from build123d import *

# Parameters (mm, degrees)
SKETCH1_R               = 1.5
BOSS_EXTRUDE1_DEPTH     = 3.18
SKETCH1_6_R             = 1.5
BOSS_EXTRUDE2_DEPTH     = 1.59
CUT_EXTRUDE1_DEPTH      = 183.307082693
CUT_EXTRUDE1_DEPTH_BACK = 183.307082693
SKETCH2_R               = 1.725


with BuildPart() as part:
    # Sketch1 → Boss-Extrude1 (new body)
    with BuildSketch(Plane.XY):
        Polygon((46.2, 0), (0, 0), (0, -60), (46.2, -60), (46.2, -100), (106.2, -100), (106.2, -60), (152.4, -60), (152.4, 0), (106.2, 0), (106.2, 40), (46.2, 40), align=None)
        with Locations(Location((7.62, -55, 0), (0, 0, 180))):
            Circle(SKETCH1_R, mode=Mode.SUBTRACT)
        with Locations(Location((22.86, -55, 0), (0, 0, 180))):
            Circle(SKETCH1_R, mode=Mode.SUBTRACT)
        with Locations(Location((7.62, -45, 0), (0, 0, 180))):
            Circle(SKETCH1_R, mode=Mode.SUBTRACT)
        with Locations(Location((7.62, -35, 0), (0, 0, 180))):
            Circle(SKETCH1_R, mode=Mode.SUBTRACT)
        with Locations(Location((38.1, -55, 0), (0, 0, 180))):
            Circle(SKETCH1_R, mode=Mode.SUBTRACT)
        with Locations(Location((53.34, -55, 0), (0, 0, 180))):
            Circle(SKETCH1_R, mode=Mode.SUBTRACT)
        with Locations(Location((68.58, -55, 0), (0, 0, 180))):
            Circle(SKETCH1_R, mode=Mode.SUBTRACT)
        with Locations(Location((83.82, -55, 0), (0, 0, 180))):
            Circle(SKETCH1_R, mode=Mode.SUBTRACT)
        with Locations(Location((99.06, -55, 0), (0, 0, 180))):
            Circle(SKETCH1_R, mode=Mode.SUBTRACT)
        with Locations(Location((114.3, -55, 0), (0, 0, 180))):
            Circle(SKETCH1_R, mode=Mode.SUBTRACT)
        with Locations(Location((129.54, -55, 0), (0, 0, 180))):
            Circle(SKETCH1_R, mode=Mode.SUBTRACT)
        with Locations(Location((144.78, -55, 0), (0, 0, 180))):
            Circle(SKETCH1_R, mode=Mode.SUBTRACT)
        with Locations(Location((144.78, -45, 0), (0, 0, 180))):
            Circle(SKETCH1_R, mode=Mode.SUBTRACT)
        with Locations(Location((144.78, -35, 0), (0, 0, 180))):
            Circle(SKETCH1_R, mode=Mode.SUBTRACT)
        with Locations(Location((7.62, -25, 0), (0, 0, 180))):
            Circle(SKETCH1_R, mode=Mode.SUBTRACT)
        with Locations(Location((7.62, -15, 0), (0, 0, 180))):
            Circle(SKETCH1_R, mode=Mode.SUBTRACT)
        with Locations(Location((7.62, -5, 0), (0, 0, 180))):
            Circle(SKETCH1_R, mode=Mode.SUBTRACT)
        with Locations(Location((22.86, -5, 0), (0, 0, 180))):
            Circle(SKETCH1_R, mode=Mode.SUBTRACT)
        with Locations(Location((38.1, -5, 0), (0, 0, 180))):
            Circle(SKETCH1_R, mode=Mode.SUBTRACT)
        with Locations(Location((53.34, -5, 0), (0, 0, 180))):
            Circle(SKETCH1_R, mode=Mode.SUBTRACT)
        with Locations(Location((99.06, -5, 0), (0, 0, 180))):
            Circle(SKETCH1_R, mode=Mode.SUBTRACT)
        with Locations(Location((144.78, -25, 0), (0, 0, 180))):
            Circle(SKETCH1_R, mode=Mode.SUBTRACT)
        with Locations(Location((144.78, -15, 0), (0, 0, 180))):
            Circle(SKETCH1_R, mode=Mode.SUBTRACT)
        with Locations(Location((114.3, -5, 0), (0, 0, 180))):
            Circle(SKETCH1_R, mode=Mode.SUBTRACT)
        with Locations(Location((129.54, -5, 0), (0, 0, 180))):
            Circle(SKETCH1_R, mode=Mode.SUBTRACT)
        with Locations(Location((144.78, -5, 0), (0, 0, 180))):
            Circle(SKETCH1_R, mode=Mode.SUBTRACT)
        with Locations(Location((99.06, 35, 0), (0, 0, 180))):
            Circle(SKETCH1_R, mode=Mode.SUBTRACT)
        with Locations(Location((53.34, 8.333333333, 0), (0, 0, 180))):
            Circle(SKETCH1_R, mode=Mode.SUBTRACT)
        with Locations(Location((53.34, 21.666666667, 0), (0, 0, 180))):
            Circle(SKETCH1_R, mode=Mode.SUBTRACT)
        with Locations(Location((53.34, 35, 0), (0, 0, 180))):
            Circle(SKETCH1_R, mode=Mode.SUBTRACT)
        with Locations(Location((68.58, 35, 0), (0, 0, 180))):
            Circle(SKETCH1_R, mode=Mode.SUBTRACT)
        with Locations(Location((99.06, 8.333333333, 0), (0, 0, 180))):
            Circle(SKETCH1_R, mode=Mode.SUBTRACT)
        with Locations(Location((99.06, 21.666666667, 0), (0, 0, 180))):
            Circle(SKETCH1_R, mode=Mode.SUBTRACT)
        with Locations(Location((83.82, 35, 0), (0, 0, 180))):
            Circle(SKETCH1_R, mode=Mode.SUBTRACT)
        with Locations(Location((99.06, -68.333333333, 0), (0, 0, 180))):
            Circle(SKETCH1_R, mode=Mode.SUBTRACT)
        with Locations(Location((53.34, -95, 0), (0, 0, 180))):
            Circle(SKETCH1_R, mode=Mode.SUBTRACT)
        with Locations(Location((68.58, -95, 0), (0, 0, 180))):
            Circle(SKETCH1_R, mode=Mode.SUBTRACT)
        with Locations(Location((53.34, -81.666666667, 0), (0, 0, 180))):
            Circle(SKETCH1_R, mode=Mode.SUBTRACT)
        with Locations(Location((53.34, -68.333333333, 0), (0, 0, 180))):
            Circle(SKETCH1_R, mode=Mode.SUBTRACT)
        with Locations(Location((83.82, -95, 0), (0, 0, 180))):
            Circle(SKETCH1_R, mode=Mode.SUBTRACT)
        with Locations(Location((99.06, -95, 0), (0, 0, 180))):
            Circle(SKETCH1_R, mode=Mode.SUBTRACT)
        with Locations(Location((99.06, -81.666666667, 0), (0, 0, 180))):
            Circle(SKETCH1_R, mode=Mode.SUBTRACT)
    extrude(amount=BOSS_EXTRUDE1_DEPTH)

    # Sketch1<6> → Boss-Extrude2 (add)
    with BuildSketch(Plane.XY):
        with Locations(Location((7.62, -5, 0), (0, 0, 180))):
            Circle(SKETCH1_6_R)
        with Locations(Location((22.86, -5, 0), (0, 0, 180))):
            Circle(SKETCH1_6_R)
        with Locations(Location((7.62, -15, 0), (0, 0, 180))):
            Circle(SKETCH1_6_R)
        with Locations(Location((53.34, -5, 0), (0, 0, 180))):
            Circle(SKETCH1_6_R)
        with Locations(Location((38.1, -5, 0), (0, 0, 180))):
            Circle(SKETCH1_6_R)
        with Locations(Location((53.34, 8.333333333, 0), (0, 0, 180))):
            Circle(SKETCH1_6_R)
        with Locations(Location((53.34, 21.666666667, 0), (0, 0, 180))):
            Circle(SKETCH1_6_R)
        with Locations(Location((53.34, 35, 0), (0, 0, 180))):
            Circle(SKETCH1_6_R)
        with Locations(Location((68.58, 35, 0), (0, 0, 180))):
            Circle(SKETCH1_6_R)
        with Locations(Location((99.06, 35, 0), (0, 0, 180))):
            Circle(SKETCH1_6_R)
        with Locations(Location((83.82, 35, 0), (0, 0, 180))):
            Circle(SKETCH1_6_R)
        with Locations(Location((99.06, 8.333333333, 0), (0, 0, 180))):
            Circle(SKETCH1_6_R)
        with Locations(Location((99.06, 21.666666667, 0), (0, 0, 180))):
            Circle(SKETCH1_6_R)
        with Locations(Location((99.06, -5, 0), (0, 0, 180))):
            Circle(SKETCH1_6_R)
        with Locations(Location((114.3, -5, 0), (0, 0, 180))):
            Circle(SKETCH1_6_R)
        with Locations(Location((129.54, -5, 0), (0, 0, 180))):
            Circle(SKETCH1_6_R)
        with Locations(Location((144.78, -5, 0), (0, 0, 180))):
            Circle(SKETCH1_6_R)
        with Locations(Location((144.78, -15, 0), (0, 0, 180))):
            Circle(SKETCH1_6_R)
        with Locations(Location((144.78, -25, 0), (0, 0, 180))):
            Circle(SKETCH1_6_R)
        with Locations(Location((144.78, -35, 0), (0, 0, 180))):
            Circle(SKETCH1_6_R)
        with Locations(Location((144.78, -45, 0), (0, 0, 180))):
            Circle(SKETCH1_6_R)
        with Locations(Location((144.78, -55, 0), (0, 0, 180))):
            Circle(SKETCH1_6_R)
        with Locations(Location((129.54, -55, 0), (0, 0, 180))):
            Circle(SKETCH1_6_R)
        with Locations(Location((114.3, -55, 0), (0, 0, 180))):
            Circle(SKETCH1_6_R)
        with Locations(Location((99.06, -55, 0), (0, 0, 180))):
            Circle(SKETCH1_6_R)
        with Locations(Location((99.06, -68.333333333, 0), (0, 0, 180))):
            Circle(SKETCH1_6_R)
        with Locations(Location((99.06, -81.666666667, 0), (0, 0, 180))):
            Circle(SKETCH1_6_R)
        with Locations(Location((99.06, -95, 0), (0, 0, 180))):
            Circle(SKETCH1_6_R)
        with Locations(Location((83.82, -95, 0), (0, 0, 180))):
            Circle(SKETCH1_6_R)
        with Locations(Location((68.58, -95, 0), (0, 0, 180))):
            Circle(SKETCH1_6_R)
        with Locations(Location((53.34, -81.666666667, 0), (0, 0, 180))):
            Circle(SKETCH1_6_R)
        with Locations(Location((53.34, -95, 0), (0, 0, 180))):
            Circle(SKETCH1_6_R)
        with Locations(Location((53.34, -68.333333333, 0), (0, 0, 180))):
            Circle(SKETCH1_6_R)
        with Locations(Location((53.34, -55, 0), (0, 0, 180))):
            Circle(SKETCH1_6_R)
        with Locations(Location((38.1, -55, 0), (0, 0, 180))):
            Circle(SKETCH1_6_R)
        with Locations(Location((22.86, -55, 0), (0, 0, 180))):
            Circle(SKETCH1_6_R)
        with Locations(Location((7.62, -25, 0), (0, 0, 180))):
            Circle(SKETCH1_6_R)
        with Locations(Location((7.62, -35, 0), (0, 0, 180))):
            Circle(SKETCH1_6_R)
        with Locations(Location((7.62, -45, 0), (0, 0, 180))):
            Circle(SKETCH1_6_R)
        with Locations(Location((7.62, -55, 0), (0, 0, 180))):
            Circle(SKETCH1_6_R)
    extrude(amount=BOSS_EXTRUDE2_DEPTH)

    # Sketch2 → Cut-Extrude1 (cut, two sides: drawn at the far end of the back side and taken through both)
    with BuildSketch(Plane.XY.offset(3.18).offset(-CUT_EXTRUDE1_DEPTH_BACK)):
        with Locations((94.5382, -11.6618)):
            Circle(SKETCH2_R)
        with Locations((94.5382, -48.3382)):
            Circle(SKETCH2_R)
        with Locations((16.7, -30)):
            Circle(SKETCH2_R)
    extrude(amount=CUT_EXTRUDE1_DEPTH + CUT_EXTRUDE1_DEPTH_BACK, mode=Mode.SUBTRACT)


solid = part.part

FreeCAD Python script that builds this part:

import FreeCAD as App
import Part
import Sketcher
from FreeCAD import Vector

doc = App.newDocument("Part")
body = doc.addObject("PartDesign::Body", "Body")

# Sketch on XY plane
sketch1 = body.newObject("Sketcher::SketchObject", "Sketch")
sketch1.AttachmentSupport = (doc.getObject("XY_Plane"), [""])
sketch1.MapMode = "FlatFace"
sketch1.addGeometry(Part.LineSegment(Vector(46.2, 0, 0), Vector(0, 0, 0)), False)
sketch1.addGeometry(Part.LineSegment(Vector(0, 0, 0), Vector(0, -60, 0)), False)
sketch1.addGeometry(Part.LineSegment(Vector(0, -60, 0), Vector(46.2, -60, 0)), False)
sketch1.addGeometry(Part.LineSegment(Vector(46.2, -60, 0), Vector(46.2, -100, 0)), False)
sketch1.addGeometry(Part.LineSegment(Vector(46.2, -100, 0), Vector(106.2, -100, 0)), False)
sketch1.addGeometry(Part.LineSegment(Vector(106.2, -100, 0), Vector(106.2, -60, 0)), False)
sketch1.addGeometry(Part.LineSegment(Vector(106.2, -60, 0), Vector(152.4, -60, 0)), False)
sketch1.addGeometry(Part.LineSegment(Vector(152.4, -60, 0), Vector(152.4, 0, 0)), False)
sketch1.addGeometry(Part.LineSegment(Vector(152.4, 0, 0), Vector(106.2, 0, 0)), False)
sketch1.addGeometry(Part.LineSegment(Vector(106.2, 0, 0), Vector(106.2, 40, 0)), False)
sketch1.addGeometry(Part.LineSegment(Vector(106.2, 40, 0), Vector(46.2, 40, 0)), False)
sketch1.addGeometry(Part.LineSegment(Vector(46.2, 40, 0), Vector(46.2, 0, 0)), False)
sketch1.addGeometry(Part.Circle(Vector(53.3, -95, 0), Vector(0, 0, 1), 1.5), False)
sketch1.addGeometry(Part.Circle(Vector(53.3, -81.7, 0), Vector(0, 0, 1), 1.5), False)
sketch1.addGeometry(Part.Circle(Vector(68.6, -95, 0), Vector(0, 0, 1), 1.5), False)
sketch1.addGeometry(Part.Circle(Vector(53.3, -68.3, 0), Vector(0, 0, 1), 1.5), False)
sketch1.addGeometry(Part.Circle(Vector(7.6, -55, 0), Vector(0, 0, 1), 1.5), False)
sketch1.addGeometry(Part.Circle(Vector(22.9, -55, 0), Vector(0, 0, 1), 1.5), False)
sketch1.addGeometry(Part.Circle(Vector(38.1, -55, 0), Vector(0, 0, 1), 1.5), False)
sketch1.addGeometry(Part.Circle(Vector(7.6, -45, 0), Vector(0, 0, 1), 1.5), False)
sketch1.addGeometry(Part.Circle(Vector(7.6, -35, 0), Vector(0, 0, 1), 1.5), False)
sketch1.addGeometry(Part.Circle(Vector(53.3, -55, 0), Vector(0, 0, 1), 1.5), False)
sketch1.addGeometry(Part.Circle(Vector(68.6, -55, 0), Vector(0, 0, 1), 1.5), False)
sketch1.addGeometry(Part.Circle(Vector(83.8, -95, 0), Vector(0, 0, 1), 1.5), False)
sketch1.addGeometry(Part.Circle(Vector(99.1, -95, 0), Vector(0, 0, 1), 1.5), False)
sketch1.addGeometry(Part.Circle(Vector(99.1, -81.7, 0), Vector(0, 0, 1), 1.5), False)
sketch1.addGeometry(Part.Circle(Vector(99.1, -68.3, 0), Vector(0, 0, 1), 1.5), False)
sketch1.addGeometry(Part.Circle(Vector(83.8, -55, 0), Vector(0, 0, 1), 1.5), False)
sketch1.addGeometry(Part.Circle(Vector(99.1, -55, 0), Vector(0, 0, 1), 1.5), False)
sketch1.addGeometry(Part.Circle(Vector(114.3, -55, 0), Vector(0, 0, 1), 1.5), False)
sketch1.addGeometry(Part.Circle(Vector(129.5, -55, 0), Vector(0, 0, 1), 1.5), False)
sketch1.addGeometry(Part.Circle(Vector(144.8, -55, 0), Vector(0, 0, 1), 1.5), False)
sketch1.addGeometry(Part.Circle(Vector(144.8, -45, 0), Vector(0, 0, 1), 1.5), False)
sketch1.addGeometry(Part.Circle(Vector(144.8, -35, 0), Vector(0, 0, 1), 1.5), False)
sketch1.addGeometry(Part.Circle(Vector(7.6, -25, 0), Vector(0, 0, 1), 1.5), False)
sketch1.addGeometry(Part.Circle(Vector(7.6, -15, 0), Vector(0, 0, 1), 1.5), False)
sketch1.addGeometry(Part.Circle(Vector(7.6, -5, 0), Vector(0, 0, 1), 1.5), False)
sketch1.addGeometry(Part.Circle(Vector(22.9, -5, 0), Vector(0, 0, 1), 1.5), False)
sketch1.addGeometry(Part.Circle(Vector(38.1, -5, 0), Vector(0, 0, 1), 1.5), False)
sketch1.addGeometry(Part.Circle(Vector(53.3, -5, 0), Vector(0, 0, 1), 1.5), False)
sketch1.addGeometry(Part.Circle(Vector(53.3, 8.3, 0), Vector(0, 0, 1), 1.5), False)
sketch1.addGeometry(Part.Circle(Vector(53.3, 21.7, 0), Vector(0, 0, 1), 1.5), False)
sketch1.addGeometry(Part.Circle(Vector(53.3, 35, 0), Vector(0, 0, 1), 1.5), False)
sketch1.addGeometry(Part.Circle(Vector(68.6, 35, 0), Vector(0, 0, 1), 1.5), False)
sketch1.addGeometry(Part.Circle(Vector(99.1, -5, 0), Vector(0, 0, 1), 1.5), False)
sketch1.addGeometry(Part.Circle(Vector(144.8, -25, 0), Vector(0, 0, 1), 1.5), False)
sketch1.addGeometry(Part.Circle(Vector(144.8, -15, 0), Vector(0, 0, 1), 1.5), False)
sketch1.addGeometry(Part.Circle(Vector(114.3, -5, 0), Vector(0, 0, 1), 1.5), False)
sketch1.addGeometry(Part.Circle(Vector(129.5, -5, 0), Vector(0, 0, 1), 1.5), False)
sketch1.addGeometry(Part.Circle(Vector(144.8, -5, 0), Vector(0, 0, 1), 1.5), False)
sketch1.addGeometry(Part.Circle(Vector(99.1, 8.3, 0), Vector(0, 0, 1), 1.5), False)
sketch1.addGeometry(Part.Circle(Vector(83.8, 35, 0), Vector(0, 0, 1), 1.5), False)
sketch1.addGeometry(Part.Circle(Vector(99.1, 21.7, 0), Vector(0, 0, 1), 1.5), False)
sketch1.addGeometry(Part.Circle(Vector(99.1, 35, 0), Vector(0, 0, 1), 1.5), False)
sketch1.addConstraint(Sketcher.Constraint("Coincident", 0, 2, 1, 1))
sketch1.addConstraint(Sketcher.Constraint("Coincident", 1, 2, 2, 1))
sketch1.addConstraint(Sketcher.Constraint("Coincident", 2, 2, 3, 1))
sketch1.addConstraint(Sketcher.Constraint("Coincident", 3, 2, 4, 1))
sketch1.addConstraint(Sketcher.Constraint("Coincident", 4, 2, 5, 1))
sketch1.addConstraint(Sketcher.Constraint("Coincident", 5, 2, 6, 1))
sketch1.addConstraint(Sketcher.Constraint("Coincident", 6, 2, 7, 1))
sketch1.addConstraint(Sketcher.Constraint("Coincident", 7, 2, 8, 1))
sketch1.addConstraint(Sketcher.Constraint("Coincident", 8, 2, 9, 1))
sketch1.addConstraint(Sketcher.Constraint("Coincident", 9, 2, 10, 1))
sketch1.addConstraint(Sketcher.Constraint("Coincident", 10, 2, 11, 1))
sketch1.addConstraint(Sketcher.Constraint("Coincident", 11, 2, 0, 1))
sketch1.addConstraint(Sketcher.Constraint("Horizontal", 0))
sketch1.addConstraint(Sketcher.Constraint("Vertical", 1))
sketch1.addConstraint(Sketcher.Constraint("Horizontal", 2))
sketch1.addConstraint(Sketcher.Constraint("Vertical", 3))
sketch1.addConstraint(Sketcher.Constraint("Horizontal", 4))
sketch1.addConstraint(Sketcher.Constraint("Vertical", 5))
sketch1.addConstraint(Sketcher.Constraint("Horizontal", 6))
sketch1.addConstraint(Sketcher.Constraint("Vertical", 7))
sketch1.addConstraint(Sketcher.Constraint("Horizontal", 8))
sketch1.addConstraint(Sketcher.Constraint("Vertical", 9))
sketch1.addConstraint(Sketcher.Constraint("Horizontal", 10))
sketch1.addConstraint(Sketcher.Constraint("Vertical", 11))
sketch1.addConstraint(Sketcher.Constraint("Coincident", 0, 2, -1, 1))
sketch1.addConstraint(Sketcher.Constraint("Equal", 12, 13))
sketch1.addConstraint(Sketcher.Constraint("Equal", 13, 14))
sketch1.addConstraint(Sketcher.Constraint("Equal", 14, 15))
sketch1.addConstraint(Sketcher.Constraint("Equal", 15, 16))
sketch1.addConstraint(Sketcher.Constraint("Equal", 16, 17))
sketch1.addConstraint(Sketcher.Constraint("Equal", 17, 18))
sketch1.addConstraint(Sketcher.Constraint("Equal", 18, 19))
sketch1.addConstraint(Sketcher.Constraint("Equal", 19, 20))
sketch1.addConstraint(Sketcher.Constraint("Equal", 20, 21))
sketch1.addConstraint(Sketcher.Constraint("Equal", 21, 22))
sketch1.addConstraint(Sketcher.Constraint("Equal", 22, 23))
sketch1.addConstraint(Sketcher.Constraint("Equal", 23, 24))
sketch1.addConstraint(Sketcher.Constraint("Equal", 24, 25))
sketch1.addConstraint(Sketcher.Constraint("Equal", 25, 26))
sketch1.addConstraint(Sketcher.Constraint("Equal", 26, 27))
sketch1.addConstraint(Sketcher.Constraint("Equal", 27, 28))
sketch1.addConstraint(Sketcher.Constraint("Equal", 28, 29))
sketch1.addConstraint(Sketcher.Constraint("Equal", 29, 30))
sketch1.addConstraint(Sketcher.Constraint("Equal", 30, 31))
sketch1.addConstraint(Sketcher.Constraint("Equal", 31, 32))
sketch1.addConstraint(Sketcher.Constraint("Equal", 32, 33))
sketch1.addConstraint(Sketcher.Constraint("Equal", 33, 34))
sketch1.addConstraint(Sketcher.Constraint("Equal", 34, 35))
sketch1.addConstraint(Sketcher.Constraint("Equal", 35, 36))
sketch1.addConstraint(Sketcher.Constraint("Equal", 36, 37))
sketch1.addConstraint(Sketcher.Constraint("Equal", 37, 38))
sketch1.addConstraint(Sketcher.Constraint("Equal", 38, 39))
sketch1.addConstraint(Sketcher.Constraint("Equal", 39, 40))
sketch1.addConstraint(Sketcher.Constraint("Equal", 40, 41))
sketch1.addConstraint(Sketcher.Constraint("Equal", 41, 42))
sketch1.addConstraint(Sketcher.Constraint("Equal", 42, 43))
sketch1.addConstraint(Sketcher.Constraint("Equal", 43, 44))
sketch1.addConstraint(Sketcher.Constraint("Equal", 44, 45))
sketch1.addConstraint(Sketcher.Constraint("Equal", 45, 46))
sketch1.addConstraint(Sketcher.Constraint("Equal", 46, 47))
sketch1.addConstraint(Sketcher.Constraint("Equal", 47, 48))
sketch1.addConstraint(Sketcher.Constraint("Equal", 48, 49))
sketch1.addConstraint(Sketcher.Constraint("Equal", 49, 50))
sketch1.addConstraint(Sketcher.Constraint("Equal", 50, 51))
sketch1.addConstraint(Sketcher.Constraint("Equal", 51, 52))
sketch1.addConstraint(Sketcher.Constraint("Equal", 52, 53))
sketch1.addConstraint(Sketcher.Constraint("PointOnObject", 7, 2, -1))
sketch1.addConstraint(Sketcher.Constraint("Horizontal", 12, 3, 14, 3))
sketch1.addConstraint(Sketcher.Constraint("Horizontal", 16, 3, 17, 3))
sketch1.addConstraint(Sketcher.Constraint("Horizontal", 17, 3, 18, 3))
sketch1.addConstraint(Sketcher.Constraint("Horizontal", 18, 3, 21, 3))
sketch1.addConstraint(Sketcher.Constraint("Horizontal", 21, 3, 22, 3))
sketch1.addConstraint(Sketcher.Constraint("Horizontal", 14, 3, 23, 3))
sketch1.addConstraint(Sketcher.Constraint("Horizontal", 23, 3, 24, 3))
sketch1.addConstraint(Sketcher.Constraint("Horizontal", 13, 3, 25, 3))
sketch1.addConstraint(Sketcher.Constraint("Horizontal", 15, 3, 26, 3))
sketch1.addConstraint(Sketcher.Constraint("Horizontal", 22, 3, 27, 3))
sketch1.addConstraint(Sketcher.Constraint("Horizontal", 27, 3, 28, 3))
sketch1.addConstraint(Sketcher.Constraint("Horizontal", 28, 3, 29, 3))
sketch1.addConstraint(Sketcher.Constraint("Horizontal", 29, 3, 30, 3))
sketch1.addConstraint(Sketcher.Constraint("Horizontal", 30, 3, 31, 3))
sketch1.addConstraint(Sketcher.Constraint("Horizontal", 19, 3, 32, 3))
sketch1.addConstraint(Sketcher.Constraint("Horizontal", 20, 3, 33, 3))
sketch1.addConstraint(Sketcher.Constraint("Horizontal", 36, 3, 37, 3))
sketch1.addConstraint(Sketcher.Constraint("Horizontal", 37, 3, 38, 3))
sketch1.addConstraint(Sketcher.Constraint("Horizontal", 38, 3, 39, 3))
sketch1.addConstraint(Sketcher.Constraint("Horizontal", 42, 3, 43, 3))
sketch1.addConstraint(Sketcher.Constraint("Horizontal", 39, 3, 44, 3))
sketch1.addConstraint(Sketcher.Constraint("Horizontal", 34, 3, 45, 3))
sketch1.addConstraint(Sketcher.Constraint("Horizontal", 35, 3, 46, 3))
sketch1.addConstraint(Sketcher.Constraint("Horizontal", 44, 3, 47, 3))
sketch1.addConstraint(Sketcher.Constraint("Horizontal", 47, 3, 48, 3))
sketch1.addConstraint(Sketcher.Constraint("Horizontal", 48, 3, 49, 3))
sketch1.addConstraint(Sketcher.Constraint("Horizontal", 40, 3, 50, 3))
sketch1.addConstraint(Sketcher.Constraint("Horizontal", 43, 3, 51, 3))
sketch1.addConstraint(Sketcher.Constraint("Horizontal", 41, 3, 52, 3))
sketch1.addConstraint(Sketcher.Constraint("Horizontal", 51, 3, 53, 3))
sketch1.addConstraint(Sketcher.Constraint("Horizontal", 2, 2, 5, 2))
sketch1.addConstraint(Sketcher.Constraint("Vertical", 12, 3, 13, 3))
sketch1.addConstraint(Sketcher.Constraint("Vertical", 13, 3, 15, 3))
sketch1.addConstraint(Sketcher.Constraint("Vertical", 16, 3, 19, 3))
sketch1.addConstraint(Sketcher.Constraint("Vertical", 19, 3, 20, 3))
sketch1.addConstraint(Sketcher.Constraint("Vertical", 15, 3, 21, 3))
sketch1.addConstraint(Sketcher.Constraint("Vertical", 14, 3, 22, 3))
sketch1.addConstraint(Sketcher.Constraint("Vertical", 24, 3, 25, 3))
sketch1.addConstraint(Sketcher.Constraint("Vertical", 25, 3, 26, 3))
sketch1.addConstraint(Sketcher.Constraint("Vertical", 23, 3, 27, 3))
sketch1.addConstraint(Sketcher.Constraint("Vertical", 26, 3, 28, 3))
sketch1.addConstraint(Sketcher.Constraint("Vertical", 31, 3, 32, 3))
sketch1.addConstraint(Sketcher.Constraint("Vertical", 32, 3, 33, 3))
sketch1.addConstraint(Sketcher.Constraint("Vertical", 20, 3, 34, 3))
sketch1.addConstraint(Sketcher.Constraint("Vertical", 34, 3, 35, 3))
sketch1.addConstraint(Sketcher.Constraint("Vertical", 35, 3, 36, 3))
sketch1.addConstraint(Sketcher.Constraint("Vertical", 17, 3, 37, 3))
sketch1.addConstraint(Sketcher.Constraint("Vertical", 18, 3, 38, 3))
sketch1.addConstraint(Sketcher.Constraint("Vertical", 21, 3, 39, 3))
sketch1.addConstraint(Sketcher.Constraint("Vertical", 39, 3, 40, 3))
sketch1.addConstraint(Sketcher.Constraint("Vertical", 40, 3, 41, 3))
sketch1.addConstraint(Sketcher.Constraint("Vertical", 41, 3, 42, 3))
sketch1.addConstraint(Sketcher.Constraint("Vertical", 22, 3, 43, 3))
sketch1.addConstraint(Sketcher.Constraint("Vertical", 28, 3, 44, 3))
sketch1.addConstraint(Sketcher.Constraint("Vertical", 33, 3, 45, 3))
sketch1.addConstraint(Sketcher.Constraint("Vertical", 45, 3, 46, 3))
sketch1.addConstraint(Sketcher.Constraint("Vertical", 29, 3, 47, 3))
sketch1.addConstraint(Sketcher.Constraint("Vertical", 30, 3, 48, 3))
sketch1.addConstraint(Sketcher.Constraint("Vertical", 46, 3, 49, 3))
sketch1.addConstraint(Sketcher.Constraint("Vertical", 44, 3, 50, 3))
sketch1.addConstraint(Sketcher.Constraint("Vertical", 27, 3, 51, 3))
sketch1.addConstraint(Sketcher.Constraint("Vertical", 50, 3, 52, 3))
sketch1.addConstraint(Sketcher.Constraint("Vertical", 52, 3, 53, 3))
sketch1.addConstraint(Sketcher.Constraint("Vertical", 5, 2, 8, 2))
sketch1.addConstraint(Sketcher.Constraint("Vertical", 3, 2, 10, 2))
sketch1.addConstraint(Sketcher.Constraint("Equal", 2, 6))
sketch1.addConstraint(Sketcher.Constraint("Equal", 10, 1))
sketch1.addConstraint(Sketcher.Constraint("Equal", 5, 9))
sketch1.addConstraint(Sketcher.Constraint("Diameter", 12, 3.0))
sketch1.addConstraint(Sketcher.Constraint("DistanceX", 4, 1, 4, 2, 60.0))
sketch1.addConstraint(Sketcher.Constraint("DistanceY", 3, 2, 3, 1, 40.0))
sketch1.addConstraint(Sketcher.Constraint("DistanceX", 0, 2, 0, 1, 46.2))
sketch1.addConstraint(Sketcher.Constraint("DistanceY", 12, 3, -1, 1, 95.0))
sketch1.addConstraint(Sketcher.Constraint("DistanceY", 16, 3, -1, 1, 55.0))
sketch1.addConstraint(Sketcher.Constraint("DistanceY", 19, 3, -1, 1, 45.0))
sketch1.addConstraint(Sketcher.Constraint("DistanceY", 20, 3, -1, 1, 35.0))
sketch1.addConstraint(Sketcher.Constraint("DistanceY", 34, 3, -1, 1, 25.0))
sketch1.addConstraint(Sketcher.Constraint("DistanceY", 35, 3, -1, 1, 15.0))
sketch1.addConstraint(Sketcher.Constraint("DistanceY", 36, 3, -1, 1, 5.0))
sketch1.addConstraint(Sketcher.Constraint("DistanceY", -1, 1, 42, 3, 35.0))
sketch1.addConstraint(Sketcher.Constraint("DistanceX", -1, 1, 18, 3, 38.1))
sketch1.addConstraint(Sketcher.Constraint("DistanceX", -1, 1, 29, 3, 114.3))
sketch1.addConstraint(Sketcher.Constraint("DistanceX", -1, 1, 12, 3, 53.34))
sketch1.addConstraint(Sketcher.Constraint("DistanceX", -1, 1, 14, 3, 68.58))
sketch1.addConstraint(Sketcher.Constraint("DistanceX", -1, 1, 16, 3, 7.62))
sketch1.addConstraint(Sketcher.Constraint("DistanceX", -1, 1, 17, 3, 22.86))
sketch1.addConstraint(Sketcher.Constraint("DistanceX", -1, 1, 23, 3, 83.82))
sketch1.addConstraint(Sketcher.Constraint("DistanceX", -1, 1, 24, 3, 99.06))
sketch1.addConstraint(Sketcher.Constraint("DistanceX", -1, 1, 30, 3, 129.54))
sketch1.addConstraint(Sketcher.Constraint("DistanceX", -1, 1, 31, 3, 144.78))
sketch1.addConstraint(Sketcher.Constraint("DistanceY", 13, 3, -1, 1, 81.666667))
sketch1.addConstraint(Sketcher.Constraint("DistanceY", 15, 3, -1, 1, 68.333333))
sketch1.addConstraint(Sketcher.Constraint("DistanceY", -1, 1, 40, 3, 8.333333))
sketch1.addConstraint(Sketcher.Constraint("DistanceY", -1, 1, 41, 3, 21.666667))
pad1 = body.newObject("PartDesign::Pad", "Pad")
pad1.Profile = sketch1
pad1.Length = 3.18

# Sketch on XY plane
sketch2 = body.newObject("Sketcher::SketchObject", "Sketch001")
sketch2.AttachmentSupport = (doc.getObject("XY_Plane"), [""])
sketch2.MapMode = "FlatFace"
sketch2.addGeometry(Part.Circle(Vector(7.6, -5, 0), Vector(0, 0, 1), 1.5), False)
sketch2.addGeometry(Part.Circle(Vector(22.9, -5, 0), Vector(0, 0, 1), 1.5), False)
sketch2.addGeometry(Part.Circle(Vector(7.6, -15, 0), Vector(0, 0, 1), 1.5), False)
sketch2.addGeometry(Part.Circle(Vector(53.3, -5, 0), Vector(0, 0, 1), 1.5), False)
sketch2.addGeometry(Part.Circle(Vector(38.1, -5, 0), Vector(0, 0, 1), 1.5), False)
sketch2.addGeometry(Part.Circle(Vector(53.3, 8.3, 0), Vector(0, 0, 1), 1.5), False)
sketch2.addGeometry(Part.Circle(Vector(53.3, 21.7, 0), Vector(0, 0, 1), 1.5), False)
sketch2.addGeometry(Part.Circle(Vector(53.3, 35, 0), Vector(0, 0, 1), 1.5), False)
sketch2.addGeometry(Part.Circle(Vector(68.6, 35, 0), Vector(0, 0, 1), 1.5), False)
sketch2.addGeometry(Part.Circle(Vector(99.1, 35, 0), Vector(0, 0, 1), 1.5), False)
sketch2.addGeometry(Part.Circle(Vector(83.8, 35, 0), Vector(0, 0, 1), 1.5), False)
sketch2.addGeometry(Part.Circle(Vector(99.1, 8.3, 0), Vector(0, 0, 1), 1.5), False)
sketch2.addGeometry(Part.Circle(Vector(99.1, 21.7, 0), Vector(0, 0, 1), 1.5), False)
sketch2.addGeometry(Part.Circle(Vector(99.1, -5, 0), Vector(0, 0, 1), 1.5), False)
sketch2.addGeometry(Part.Circle(Vector(114.3, -5, 0), Vector(0, 0, 1), 1.5), False)
sketch2.addGeometry(Part.Circle(Vector(129.5, -5, 0), Vector(0, 0, 1), 1.5), False)
sketch2.addGeometry(Part.Circle(Vector(144.8, -5, 0), Vector(0, 0, 1), 1.5), False)
sketch2.addGeometry(Part.Circle(Vector(144.8, -15, 0), Vector(0, 0, 1), 1.5), False)
sketch2.addGeometry(Part.Circle(Vector(144.8, -25, 0), Vector(0, 0, 1), 1.5), False)
sketch2.addGeometry(Part.Circle(Vector(144.8, -35, 0), Vector(0, 0, 1), 1.5), False)
sketch2.addGeometry(Part.Circle(Vector(144.8, -45, 0), Vector(0, 0, 1), 1.5), False)
sketch2.addGeometry(Part.Circle(Vector(144.8, -55, 0), Vector(0, 0, 1), 1.5), False)
sketch2.addGeometry(Part.Circle(Vector(129.5, -55, 0), Vector(0, 0, 1), 1.5), False)
sketch2.addGeometry(Part.Circle(Vector(114.3, -55, 0), Vector(0, 0, 1), 1.5), False)
sketch2.addGeometry(Part.Circle(Vector(99.1, -55, 0), Vector(0, 0, 1), 1.5), False)
sketch2.addGeometry(Part.Circle(Vector(99.1, -68.3, 0), Vector(0, 0, 1), 1.5), False)
sketch2.addGeometry(Part.Circle(Vector(99.1, -81.7, 0), Vector(0, 0, 1), 1.5), False)
sketch2.addGeometry(Part.Circle(Vector(99.1, -95, 0), Vector(0, 0, 1), 1.5), False)
sketch2.addGeometry(Part.Circle(Vector(83.8, -95, 0), Vector(0, 0, 1), 1.5), False)
sketch2.addGeometry(Part.Circle(Vector(68.6, -95, 0), Vector(0, 0, 1), 1.5), False)
sketch2.addGeometry(Part.Circle(Vector(53.3, -81.7, 0), Vector(0, 0, 1), 1.5), False)
sketch2.addGeometry(Part.Circle(Vector(53.3, -95, 0), Vector(0, 0, 1), 1.5), False)
sketch2.addGeometry(Part.Circle(Vector(53.3, -68.3, 0), Vector(0, 0, 1), 1.5), False)
sketch2.addGeometry(Part.Circle(Vector(53.3, -55, 0), Vector(0, 0, 1), 1.5), False)
sketch2.addGeometry(Part.Circle(Vector(38.1, -55, 0), Vector(0, 0, 1), 1.5), False)
sketch2.addGeometry(Part.Circle(Vector(22.9, -55, 0), Vector(0, 0, 1), 1.5), False)
sketch2.addGeometry(Part.Circle(Vector(7.6, -25, 0), Vector(0, 0, 1), 1.5), False)
sketch2.addGeometry(Part.Circle(Vector(7.6, -35, 0), Vector(0, 0, 1), 1.5), False)
sketch2.addGeometry(Part.Circle(Vector(7.6, -45, 0), Vector(0, 0, 1), 1.5), False)
sketch2.addGeometry(Part.Circle(Vector(7.6, -55, 0), Vector(0, 0, 1), 1.5), False)
sketch2.addConstraint(Sketcher.Constraint("Equal", 0, 1))
sketch2.addConstraint(Sketcher.Constraint("Equal", 1, 2))
sketch2.addConstraint(Sketcher.Constraint("Equal", 2, 3))
sketch2.addConstraint(Sketcher.Constraint("Equal", 3, 4))
sketch2.addConstraint(Sketcher.Constraint("Equal", 4, 5))
sketch2.addConstraint(Sketcher.Constraint("Equal", 5, 6))
sketch2.addConstraint(Sketcher.Constraint("Equal", 6, 7))
sketch2.addConstraint(Sketcher.Constraint("Equal", 7, 8))
sketch2.addConstraint(Sketcher.Constraint("Equal", 8, 9))
sketch2.addConstraint(Sketcher.Constraint("Equal", 9, 10))
sketch2.addConstraint(Sketcher.Constraint("Equal", 10, 11))
sketch2.addConstraint(Sketcher.Constraint("Equal", 11, 12))
sketch2.addConstraint(Sketcher.Constraint("Equal", 12, 13))
sketch2.addConstraint(Sketcher.Constraint("Equal", 13, 14))
sketch2.addConstraint(Sketcher.Constraint("Equal", 14, 15))
sketch2.addConstraint(Sketcher.Constraint("Equal", 15, 16))
sketch2.addConstraint(Sketcher.Constraint("Equal", 16, 17))
sketch2.addConstraint(Sketcher.Constraint("Equal", 17, 18))
sketch2.addConstraint(Sketcher.Constraint("Equal", 18, 19))
sketch2.addConstraint(Sketcher.Constraint("Equal", 19, 20))
sketch2.addConstraint(Sketcher.Constraint("Equal", 20, 21))
sketch2.addConstraint(Sketcher.Constraint("Equal", 21, 22))
sketch2.addConstraint(Sketcher.Constraint("Equal", 22, 23))
sketch2.addConstraint(Sketcher.Constraint("Equal", 23, 24))
sketch2.addConstraint(Sketcher.Constraint("Equal", 24, 25))
sketch2.addConstraint(Sketcher.Constraint("Equal", 25, 26))
sketch2.addConstraint(Sketcher.Constraint("Equal", 26, 27))
sketch2.addConstraint(Sketcher.Constraint("Equal", 27, 28))
sketch2.addConstraint(Sketcher.Constraint("Equal", 28, 29))
sketch2.addConstraint(Sketcher.Constraint("Equal", 29, 30))
sketch2.addConstraint(Sketcher.Constraint("Equal", 30, 31))
sketch2.addConstraint(Sketcher.Constraint("Equal", 31, 32))
sketch2.addConstraint(Sketcher.Constraint("Equal", 32, 33))
sketch2.addConstraint(Sketcher.Constraint("Equal", 33, 34))
sketch2.addConstraint(Sketcher.Constraint("Equal", 34, 35))
sketch2.addConstraint(Sketcher.Constraint("Equal", 35, 36))
sketch2.addConstraint(Sketcher.Constraint("Equal", 36, 37))
sketch2.addConstraint(Sketcher.Constraint("Equal", 37, 38))
sketch2.addConstraint(Sketcher.Constraint("Equal", 38, 39))
sketch2.addConstraint(Sketcher.Constraint("Horizontal", 0, 3, 1, 3))
sketch2.addConstraint(Sketcher.Constraint("Horizontal", 1, 3, 3, 3))
sketch2.addConstraint(Sketcher.Constraint("Horizontal", 3, 3, 4, 3))
sketch2.addConstraint(Sketcher.Constraint("Horizontal", 7, 3, 8, 3))
sketch2.addConstraint(Sketcher.Constraint("Horizontal", 8, 3, 9, 3))
sketch2.addConstraint(Sketcher.Constraint("Horizontal", 9, 3, 10, 3))
sketch2.addConstraint(Sketcher.Constraint("Horizontal", 5, 3, 11, 3))
sketch2.addConstraint(Sketcher.Constraint("Horizontal", 6, 3, 12, 3))
sketch2.addConstraint(Sketcher.Constraint("Horizontal", 4, 3, 13, 3))
sketch2.addConstraint(Sketcher.Constraint("Horizontal", 13, 3, 14, 3))
sketch2.addConstraint(Sketcher.Constraint("Horizontal", 14, 3, 15, 3))
sketch2.addConstraint(Sketcher.Constraint("Horizontal", 15, 3, 16, 3))
sketch2.addConstraint(Sketcher.Constraint("Horizontal", 2, 3, 17, 3))
sketch2.addConstraint(Sketcher.Constraint("Horizontal", 21, 3, 22, 3))
sketch2.addConstraint(Sketcher.Constraint("Horizontal", 22, 3, 23, 3))
sketch2.addConstraint(Sketcher.Constraint("Horizontal", 23, 3, 24, 3))
sketch2.addConstraint(Sketcher.Constraint("Horizontal", 27, 3, 28, 3))
sketch2.addConstraint(Sketcher.Constraint("Horizontal", 28, 3, 29, 3))
sketch2.addConstraint(Sketcher.Constraint("Horizontal", 26, 3, 30, 3))
sketch2.addConstraint(Sketcher.Constraint("Horizontal", 29, 3, 31, 3))
sketch2.addConstraint(Sketcher.Constraint("Horizontal", 25, 3, 32, 3))
sketch2.addConstraint(Sketcher.Constraint("Horizontal", 24, 3, 33, 3))
sketch2.addConstraint(Sketcher.Constraint("Horizontal", 33, 3, 34, 3))
sketch2.addConstraint(Sketcher.Constraint("Horizontal", 34, 3, 35, 3))
sketch2.addConstraint(Sketcher.Constraint("Horizontal", 18, 3, 36, 3))
sketch2.addConstraint(Sketcher.Constraint("Horizontal", 19, 3, 37, 3))
sketch2.addConstraint(Sketcher.Constraint("Horizontal", 20, 3, 38, 3))
sketch2.addConstraint(Sketcher.Constraint("Horizontal", 35, 3, 39, 3))
sketch2.addConstraint(Sketcher.Constraint("Vertical", 0, 3, 2, 3))
sketch2.addConstraint(Sketcher.Constraint("Vertical", 3, 3, 5, 3))
sketch2.addConstraint(Sketcher.Constraint("Vertical", 5, 3, 6, 3))
sketch2.addConstraint(Sketcher.Constraint("Vertical", 6, 3, 7, 3))
sketch2.addConstraint(Sketcher.Constraint("Vertical", 9, 3, 11, 3))
sketch2.addConstraint(Sketcher.Constraint("Vertical", 11, 3, 12, 3))
sketch2.addConstraint(Sketcher.Constraint("Vertical", 12, 3, 13, 3))
sketch2.addConstraint(Sketcher.Constraint("Vertical", 16, 3, 17, 3))
sketch2.addConstraint(Sketcher.Constraint("Vertical", 17, 3, 18, 3))
sketch2.addConstraint(Sketcher.Constraint("Vertical", 18, 3, 19, 3))
sketch2.addConstraint(Sketcher.Constraint("Vertical", 19, 3, 20, 3))
sketch2.addConstraint(Sketcher.Constraint("Vertical", 20, 3, 21, 3))
sketch2.addConstraint(Sketcher.Constraint("Vertical", 15, 3, 22, 3))
sketch2.addConstraint(Sketcher.Constraint("Vertical", 14, 3, 23, 3))
sketch2.addConstraint(Sketcher.Constraint("Vertical", 13, 3, 24, 3))
sketch2.addConstraint(Sketcher.Constraint("Vertical", 24, 3, 25, 3))
sketch2.addConstraint(Sketcher.Constraint("Vertical", 25, 3, 26, 3))
sketch2.addConstraint(Sketcher.Constraint("Vertical", 26, 3, 27, 3))
sketch2.addConstraint(Sketcher.Constraint("Vertical", 10, 3, 28, 3))
sketch2.addConstraint(Sketcher.Constraint("Vertical", 8, 3, 29, 3))
sketch2.addConstraint(Sketcher.Constraint("Vertical", 7, 3, 30, 3))
sketch2.addConstraint(Sketcher.Constraint("Vertical", 30, 3, 31, 3))
sketch2.addConstraint(Sketcher.Constraint("Vertical", 31, 3, 32, 3))
sketch2.addConstraint(Sketcher.Constraint("Vertical", 32, 3, 33, 3))
sketch2.addConstraint(Sketcher.Constraint("Vertical", 4, 3, 34, 3))
sketch2.addConstraint(Sketcher.Constraint("Vertical", 1, 3, 35, 3))
sketch2.addConstraint(Sketcher.Constraint("Vertical", 2, 3, 36, 3))
sketch2.addConstraint(Sketcher.Constraint("Vertical", 36, 3, 37, 3))
sketch2.addConstraint(Sketcher.Constraint("Vertical", 37, 3, 38, 3))
sketch2.addConstraint(Sketcher.Constraint("Vertical", 38, 3, 39, 3))
sketch2.addConstraint(Sketcher.Constraint("Diameter", 0, 3.0))
sketch2.addConstraint(Sketcher.Constraint("DistanceY", 0, 3, -1, 1, 5.0))
sketch2.addConstraint(Sketcher.Constraint("DistanceY", 2, 3, -1, 1, 15.0))
sketch2.addConstraint(Sketcher.Constraint("DistanceY", -1, 1, 7, 3, 35.0))
sketch2.addConstraint(Sketcher.Constraint("DistanceY", 18, 3, -1, 1, 25.0))
sketch2.addConstraint(Sketcher.Constraint("DistanceY", 19, 3, -1, 1, 35.0))
sketch2.addConstraint(Sketcher.Constraint("DistanceY", 20, 3, -1, 1, 45.0))
sketch2.addConstraint(Sketcher.Constraint("DistanceY", 21, 3, -1, 1, 55.0))
sketch2.addConstraint(Sketcher.Constraint("DistanceY", 27, 3, -1, 1, 95.0))
sketch2.addConstraint(Sketcher.Constraint("DistanceX", -1, 1, 4, 3, 38.1))
sketch2.addConstraint(Sketcher.Constraint("DistanceX", -1, 1, 14, 3, 114.3))
sketch2.addConstraint(Sketcher.Constraint("DistanceX", -1, 1, 0, 3, 7.62))
sketch2.addConstraint(Sketcher.Constraint("DistanceX", -1, 1, 1, 3, 22.86))
sketch2.addConstraint(Sketcher.Constraint("DistanceX", -1, 1, 3, 3, 53.34))
sketch2.addConstraint(Sketcher.Constraint("DistanceX", -1, 1, 8, 3, 68.58))
sketch2.addConstraint(Sketcher.Constraint("DistanceX", -1, 1, 9, 3, 99.06))
sketch2.addConstraint(Sketcher.Constraint("DistanceX", -1, 1, 10, 3, 83.82))
sketch2.addConstraint(Sketcher.Constraint("DistanceX", -1, 1, 15, 3, 129.54))
sketch2.addConstraint(Sketcher.Constraint("DistanceX", -1, 1, 16, 3, 144.78))
sketch2.addConstraint(Sketcher.Constraint("DistanceY", -1, 1, 5, 3, 8.333333))
sketch2.addConstraint(Sketcher.Constraint("DistanceY", -1, 1, 6, 3, 21.666667))
sketch2.addConstraint(Sketcher.Constraint("DistanceY", 25, 3, -1, 1, 68.333333))
sketch2.addConstraint(Sketcher.Constraint("DistanceY", 26, 3, -1, 1, 81.666667))
pad2 = body.newObject("PartDesign::Pad", "Pad001")
pad2.Profile = sketch2
pad2.Length = 1.59

# Sketch on XY plane
sketch3 = body.newObject("Sketcher::SketchObject", "Sketch002")
sketch3.AttachmentSupport = (doc.getObject("XY_Plane"), [""])
sketch3.MapMode = "FlatFace"
sketch3.AttachmentOffset = App.Placement(Vector(0, 0, 3.18), App.Rotation())
sketch3.addGeometry(Part.Circle(Vector(94.5, -11.7, 0), Vector(0, 0, 1), 1.7), False)
sketch3.addGeometry(Part.Circle(Vector(94.5, -48.3, 0), Vector(0, 0, 1), 1.7), False)
sketch3.addGeometry(Part.Circle(Vector(16.7, -30, 0), Vector(0, 0, 1), 1.7), False)
sketch3.addConstraint(Sketcher.Constraint("Equal", 0, 1))
sketch3.addConstraint(Sketcher.Constraint("Equal", 1, 2))
sketch3.addConstraint(Sketcher.Constraint("Vertical", 0, 3, 1, 3))
sketch3.addConstraint(Sketcher.Constraint("Diameter", 0, 3.45))
sketch3.addConstraint(Sketcher.Constraint("DistanceY", 2, 3, -1, 1, 30.0))
sketch3.addConstraint(Sketcher.Constraint("DistanceX", -1, 1, 2, 3, 16.7))
sketch3.addConstraint(Sketcher.Constraint("DistanceX", -1, 1, 0, 3, 94.5382))
sketch3.addConstraint(Sketcher.Constraint("DistanceY", 0, 3, -1, 1, 11.6618))
sketch3.addConstraint(Sketcher.Constraint("DistanceY", 1, 3, -1, 1, 48.3382))
pocket1 = body.newObject("PartDesign::Pocket", "Pocket")
pocket1.Profile = sketch3
pocket1.Type = "ThroughAll"
pocket1.Midplane = True

doc.recompute()
